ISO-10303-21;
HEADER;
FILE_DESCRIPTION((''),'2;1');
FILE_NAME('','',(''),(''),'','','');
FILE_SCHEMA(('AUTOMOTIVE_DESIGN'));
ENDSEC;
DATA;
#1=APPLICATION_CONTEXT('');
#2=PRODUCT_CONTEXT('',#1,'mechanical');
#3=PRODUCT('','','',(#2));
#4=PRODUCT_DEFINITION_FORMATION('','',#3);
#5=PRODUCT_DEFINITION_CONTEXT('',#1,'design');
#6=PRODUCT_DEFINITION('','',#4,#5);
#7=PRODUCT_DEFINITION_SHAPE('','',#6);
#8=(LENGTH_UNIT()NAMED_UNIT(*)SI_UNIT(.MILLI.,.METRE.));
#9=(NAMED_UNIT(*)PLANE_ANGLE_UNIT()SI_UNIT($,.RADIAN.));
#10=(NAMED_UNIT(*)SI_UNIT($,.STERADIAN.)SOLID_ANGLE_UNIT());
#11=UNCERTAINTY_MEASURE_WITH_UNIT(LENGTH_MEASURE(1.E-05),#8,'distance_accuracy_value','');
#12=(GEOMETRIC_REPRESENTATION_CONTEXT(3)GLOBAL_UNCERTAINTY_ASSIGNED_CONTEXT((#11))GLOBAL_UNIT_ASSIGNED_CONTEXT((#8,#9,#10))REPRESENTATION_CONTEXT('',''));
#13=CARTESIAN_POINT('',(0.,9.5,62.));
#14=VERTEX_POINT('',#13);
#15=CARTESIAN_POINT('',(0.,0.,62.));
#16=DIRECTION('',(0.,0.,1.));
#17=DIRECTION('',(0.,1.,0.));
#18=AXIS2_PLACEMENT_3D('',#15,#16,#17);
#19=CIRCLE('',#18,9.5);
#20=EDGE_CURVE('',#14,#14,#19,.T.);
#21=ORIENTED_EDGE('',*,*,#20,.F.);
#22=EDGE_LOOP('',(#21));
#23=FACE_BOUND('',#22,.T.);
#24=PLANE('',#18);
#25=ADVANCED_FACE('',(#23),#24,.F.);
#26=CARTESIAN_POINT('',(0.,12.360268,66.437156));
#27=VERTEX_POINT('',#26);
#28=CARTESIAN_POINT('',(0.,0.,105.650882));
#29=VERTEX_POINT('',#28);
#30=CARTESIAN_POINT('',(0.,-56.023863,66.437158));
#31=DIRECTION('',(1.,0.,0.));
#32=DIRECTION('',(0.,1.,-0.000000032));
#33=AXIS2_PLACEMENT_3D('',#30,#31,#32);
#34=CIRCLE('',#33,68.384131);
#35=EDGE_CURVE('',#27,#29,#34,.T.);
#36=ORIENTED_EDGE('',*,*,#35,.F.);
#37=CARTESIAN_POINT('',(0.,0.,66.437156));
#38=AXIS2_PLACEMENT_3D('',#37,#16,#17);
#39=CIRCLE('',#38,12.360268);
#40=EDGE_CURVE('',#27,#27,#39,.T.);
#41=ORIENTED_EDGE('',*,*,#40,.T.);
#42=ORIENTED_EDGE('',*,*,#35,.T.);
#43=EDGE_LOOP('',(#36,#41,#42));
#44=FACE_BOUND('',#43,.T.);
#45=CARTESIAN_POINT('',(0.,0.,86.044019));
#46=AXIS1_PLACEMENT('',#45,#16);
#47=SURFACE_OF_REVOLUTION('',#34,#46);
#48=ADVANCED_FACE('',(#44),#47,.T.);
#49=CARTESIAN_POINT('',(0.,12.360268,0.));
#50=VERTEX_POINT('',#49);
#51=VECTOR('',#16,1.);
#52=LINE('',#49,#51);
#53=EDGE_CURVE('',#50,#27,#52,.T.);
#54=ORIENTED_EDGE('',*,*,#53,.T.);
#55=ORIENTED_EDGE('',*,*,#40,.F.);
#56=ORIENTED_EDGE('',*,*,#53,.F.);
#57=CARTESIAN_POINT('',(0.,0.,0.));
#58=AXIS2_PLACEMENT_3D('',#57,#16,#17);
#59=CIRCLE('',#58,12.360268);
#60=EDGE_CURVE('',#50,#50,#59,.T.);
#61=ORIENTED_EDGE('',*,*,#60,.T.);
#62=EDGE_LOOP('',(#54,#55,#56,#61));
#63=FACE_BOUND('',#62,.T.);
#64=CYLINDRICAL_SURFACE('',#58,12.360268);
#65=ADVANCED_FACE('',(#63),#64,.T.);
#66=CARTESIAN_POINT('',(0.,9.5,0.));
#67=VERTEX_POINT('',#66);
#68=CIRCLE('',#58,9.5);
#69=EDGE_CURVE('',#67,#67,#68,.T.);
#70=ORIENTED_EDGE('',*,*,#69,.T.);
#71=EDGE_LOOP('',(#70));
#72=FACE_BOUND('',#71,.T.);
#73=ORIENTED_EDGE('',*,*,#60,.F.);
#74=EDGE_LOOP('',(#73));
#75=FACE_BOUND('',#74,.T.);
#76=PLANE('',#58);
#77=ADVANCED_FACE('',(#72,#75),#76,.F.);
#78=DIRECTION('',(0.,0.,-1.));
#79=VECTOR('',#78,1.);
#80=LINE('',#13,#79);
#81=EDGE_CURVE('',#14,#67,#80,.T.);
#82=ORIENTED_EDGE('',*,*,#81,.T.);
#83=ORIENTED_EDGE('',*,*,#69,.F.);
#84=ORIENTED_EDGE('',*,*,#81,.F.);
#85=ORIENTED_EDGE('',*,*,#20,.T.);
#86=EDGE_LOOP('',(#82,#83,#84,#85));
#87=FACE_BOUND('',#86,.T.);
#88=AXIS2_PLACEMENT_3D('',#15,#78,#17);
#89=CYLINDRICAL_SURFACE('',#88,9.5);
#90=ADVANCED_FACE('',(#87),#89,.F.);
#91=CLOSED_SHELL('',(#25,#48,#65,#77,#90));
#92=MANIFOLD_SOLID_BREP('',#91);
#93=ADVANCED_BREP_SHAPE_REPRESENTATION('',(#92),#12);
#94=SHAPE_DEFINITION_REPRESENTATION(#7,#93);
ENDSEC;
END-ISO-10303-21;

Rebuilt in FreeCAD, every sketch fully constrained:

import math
import FreeCAD as App
import Part
import Sketcher
Q = App.Units.Quantity

doc = App.newDocument("Part")
body = doc.addObject("PartDesign::Body", "Body")

# Sketch on YZ plane
sketch1 = doc.addObject("Sketcher::SketchObject", "Sketch")
body.addObject(sketch1)
sketch1.AttachmentSupport = (doc.YZ_Plane, [""])
sketch1.MapMode = "FlatFace"
sketch1.addGeometry(Part.LineSegment(App.Vector(9.5, 62, 0), App.Vector(9.5, 0, 0)), False)
sketch1.addGeometry(Part.LineSegment(App.Vector(9.5, 0, 0), App.Vector(12.360268, 0, 0)), False)
sketch1.addGeometry(Part.LineSegment(App.Vector(12.360268, 0, 0), App.Vector(12.360268, 66.437156, 0)), False)
sketch1.addGeometry(Part.ArcOfCircle(Part.Circle(App.Vector(-56.023863, 66.437158, 0), App.Vector(0, 0, 1), 68.384131), math.radians(-0.000002), math.radians(34.989975)), False)
sketch1.addGeometry(Part.LineSegment(App.Vector(0, 105.650882, 0), App.Vector(0, 62, 0)), False)
sketch1.addGeometry(Part.LineSegment(App.Vector(0, 62, 0), App.Vector(9.5, 62, 0)), False)
sketch1.addConstraint(Sketcher.Constraint("Coincident", 0, 2, 1, 1))
sketch1.addConstraint(Sketcher.Constraint("Coincident", 1, 2, 2, 1))
sketch1.addConstraint(Sketcher.Constraint("Tangent", 2, 2, 3, 1))
sketch1.addConstraint(Sketcher.Constraint("Coincident", 3, 2, 4, 1))
sketch1.addConstraint(Sketcher.Constraint("Coincident", 4, 2, 5, 1))
sketch1.addConstraint(Sketcher.Constraint("Coincident", 5, 2, 0, 1))
sketch1.addConstraint(Sketcher.Constraint("Vertical", 0))
sketch1.addConstraint(Sketcher.Constraint("Horizontal", 1))
sketch1.addConstraint(Sketcher.Constraint("Vertical", 2))
sketch1.addConstraint(Sketcher.Constraint("Vertical", 4))
sketch1.addConstraint(Sketcher.Constraint("Horizontal", 5))
sketch1.addConstraint(Sketcher.Constraint("PointOnObject", 0, 2, -1))
sketch1.addConstraint(Sketcher.Constraint("PointOnObject", 3, 2, -2))
sketch1.addConstraint(Sketcher.Constraint("DistanceY", 0, 2, 0, 1, Q("62 mm")))
sketch1.addConstraint(Sketcher.Constraint("DistanceX", 5, 1, 5, 2, Q("9.5 mm")))
sketch1.addConstraint(Sketcher.Constraint("Radius", 3, Q("68.384131 mm")))
sketch1.addConstraint(Sketcher.Constraint("DistanceY", 4, 2, 4, 1, Q("43.650882 mm")))
sketch1.addConstraint(Sketcher.Constraint("DistanceX", 1, 1, 1, 2, Q("2.860268 mm")))
revolution = doc.addObject("PartDesign::Revolution", "Revolution")
body.addObject(revolution)
revolution.Profile = sketch1
revolution.ReferenceAxis = (sketch1, ["V_Axis"])
revolution.Angle = 360

doc.recompute()
